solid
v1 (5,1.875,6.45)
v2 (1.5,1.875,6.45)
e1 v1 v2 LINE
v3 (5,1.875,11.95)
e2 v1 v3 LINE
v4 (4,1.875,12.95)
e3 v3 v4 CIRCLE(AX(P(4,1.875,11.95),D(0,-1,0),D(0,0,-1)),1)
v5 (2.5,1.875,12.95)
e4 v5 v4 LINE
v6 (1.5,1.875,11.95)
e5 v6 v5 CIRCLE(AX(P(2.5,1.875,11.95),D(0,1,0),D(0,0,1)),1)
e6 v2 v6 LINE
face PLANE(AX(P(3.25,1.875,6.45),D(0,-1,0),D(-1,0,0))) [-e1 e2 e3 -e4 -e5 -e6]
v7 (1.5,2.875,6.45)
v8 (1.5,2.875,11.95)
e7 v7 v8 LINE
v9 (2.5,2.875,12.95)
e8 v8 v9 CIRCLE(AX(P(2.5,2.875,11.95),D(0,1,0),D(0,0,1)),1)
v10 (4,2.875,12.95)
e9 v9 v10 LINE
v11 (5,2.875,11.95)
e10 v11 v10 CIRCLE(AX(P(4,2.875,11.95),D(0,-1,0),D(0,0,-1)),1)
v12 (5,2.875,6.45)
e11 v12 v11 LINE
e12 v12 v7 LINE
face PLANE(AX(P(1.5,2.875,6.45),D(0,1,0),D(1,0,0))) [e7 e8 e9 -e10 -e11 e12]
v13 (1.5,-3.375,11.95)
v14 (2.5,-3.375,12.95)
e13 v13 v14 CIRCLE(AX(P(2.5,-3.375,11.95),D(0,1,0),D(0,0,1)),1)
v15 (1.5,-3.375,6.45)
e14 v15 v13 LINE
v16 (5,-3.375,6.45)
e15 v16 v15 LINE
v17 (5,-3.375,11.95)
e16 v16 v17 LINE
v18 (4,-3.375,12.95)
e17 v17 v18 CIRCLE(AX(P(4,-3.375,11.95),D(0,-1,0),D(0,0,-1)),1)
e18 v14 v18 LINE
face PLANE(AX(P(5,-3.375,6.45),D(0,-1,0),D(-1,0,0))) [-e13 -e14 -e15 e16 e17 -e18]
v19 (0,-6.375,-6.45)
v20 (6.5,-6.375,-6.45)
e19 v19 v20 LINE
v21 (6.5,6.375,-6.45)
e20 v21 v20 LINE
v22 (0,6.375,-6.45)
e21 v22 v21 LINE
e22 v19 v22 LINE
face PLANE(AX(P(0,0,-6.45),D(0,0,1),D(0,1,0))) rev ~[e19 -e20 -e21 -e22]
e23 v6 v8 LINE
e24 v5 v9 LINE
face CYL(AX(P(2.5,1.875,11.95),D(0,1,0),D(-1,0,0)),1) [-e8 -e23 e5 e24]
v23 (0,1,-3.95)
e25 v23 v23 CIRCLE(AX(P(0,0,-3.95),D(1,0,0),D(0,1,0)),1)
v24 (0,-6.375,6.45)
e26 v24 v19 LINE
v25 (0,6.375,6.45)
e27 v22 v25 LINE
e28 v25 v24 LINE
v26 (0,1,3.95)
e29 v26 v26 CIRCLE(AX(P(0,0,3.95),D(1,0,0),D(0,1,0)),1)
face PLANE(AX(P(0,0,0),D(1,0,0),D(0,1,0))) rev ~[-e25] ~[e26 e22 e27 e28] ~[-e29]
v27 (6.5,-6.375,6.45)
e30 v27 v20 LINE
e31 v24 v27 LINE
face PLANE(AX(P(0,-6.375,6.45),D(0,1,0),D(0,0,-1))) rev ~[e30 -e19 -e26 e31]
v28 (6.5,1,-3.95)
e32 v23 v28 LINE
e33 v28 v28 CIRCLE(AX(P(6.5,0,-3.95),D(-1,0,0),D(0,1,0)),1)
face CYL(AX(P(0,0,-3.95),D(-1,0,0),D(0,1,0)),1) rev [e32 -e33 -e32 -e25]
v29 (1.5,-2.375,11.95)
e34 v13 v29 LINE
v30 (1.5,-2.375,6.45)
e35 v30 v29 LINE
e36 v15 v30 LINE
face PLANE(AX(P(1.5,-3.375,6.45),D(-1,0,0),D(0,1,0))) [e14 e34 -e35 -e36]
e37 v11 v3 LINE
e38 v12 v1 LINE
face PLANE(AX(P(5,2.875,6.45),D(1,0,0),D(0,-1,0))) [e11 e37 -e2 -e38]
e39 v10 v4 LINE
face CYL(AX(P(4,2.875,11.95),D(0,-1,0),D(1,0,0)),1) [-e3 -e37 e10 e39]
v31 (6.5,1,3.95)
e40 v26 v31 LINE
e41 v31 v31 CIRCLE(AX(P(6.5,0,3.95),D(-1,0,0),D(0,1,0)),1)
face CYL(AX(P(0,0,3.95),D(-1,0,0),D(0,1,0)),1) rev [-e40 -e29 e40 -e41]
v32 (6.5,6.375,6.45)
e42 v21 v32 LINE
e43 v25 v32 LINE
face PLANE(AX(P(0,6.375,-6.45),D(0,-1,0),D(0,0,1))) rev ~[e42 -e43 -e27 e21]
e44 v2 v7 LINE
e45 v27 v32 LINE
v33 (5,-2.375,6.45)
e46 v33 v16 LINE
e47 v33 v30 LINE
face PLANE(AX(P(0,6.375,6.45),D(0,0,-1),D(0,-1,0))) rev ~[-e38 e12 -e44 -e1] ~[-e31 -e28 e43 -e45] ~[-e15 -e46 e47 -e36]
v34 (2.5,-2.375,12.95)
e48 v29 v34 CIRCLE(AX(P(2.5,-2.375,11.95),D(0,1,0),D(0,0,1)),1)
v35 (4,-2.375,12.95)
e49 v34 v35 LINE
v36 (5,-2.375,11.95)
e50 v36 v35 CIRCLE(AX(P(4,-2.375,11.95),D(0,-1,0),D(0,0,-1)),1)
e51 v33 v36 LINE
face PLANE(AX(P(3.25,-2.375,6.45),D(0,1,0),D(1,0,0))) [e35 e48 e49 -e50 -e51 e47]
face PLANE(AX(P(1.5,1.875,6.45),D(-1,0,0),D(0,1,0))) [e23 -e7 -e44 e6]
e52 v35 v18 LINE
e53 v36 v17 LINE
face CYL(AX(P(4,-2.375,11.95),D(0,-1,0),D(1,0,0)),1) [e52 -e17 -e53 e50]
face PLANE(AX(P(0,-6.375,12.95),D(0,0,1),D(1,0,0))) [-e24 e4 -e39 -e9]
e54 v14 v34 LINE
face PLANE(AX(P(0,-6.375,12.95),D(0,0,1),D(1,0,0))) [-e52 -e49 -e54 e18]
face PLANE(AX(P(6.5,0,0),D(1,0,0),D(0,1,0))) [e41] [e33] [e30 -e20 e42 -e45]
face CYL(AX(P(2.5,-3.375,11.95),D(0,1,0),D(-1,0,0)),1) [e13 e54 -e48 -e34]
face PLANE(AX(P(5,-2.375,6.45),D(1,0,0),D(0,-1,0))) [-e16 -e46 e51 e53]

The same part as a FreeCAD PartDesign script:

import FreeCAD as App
import Part
import Sketcher

V = App.Vector


def edges_at(feature, points):
    """Names of the edges that pass closest to the given points."""
    edges = feature.Shape.Edges
    near = lambda p: min(range(len(edges)), key=lambda i: edges[i].distToShape(Part.Vertex(*p))[0])
    return sorted({f"Edge{near(p) + 1}" for p in points})


def add_polygon(sketch, points):
    """Adds a closed chain of lines whose ends are joined by coincident constraints."""
    first, n = sketch.GeometryCount, len(points)
    for a, b in zip(points, points[1:] + points[:1]):
        sketch.addGeometry(Part.LineSegment(App.Vector(*a, 0), App.Vector(*b, 0)), False)
    for i in range(n):
        sketch.addConstraint(Sketcher.Constraint("Coincident", first + i, 2, first + (i + 1) % n, 1))

doc = App.newDocument("Part")
body = doc.addObject("PartDesign::Body", "Body")

sketch1 = body.newObject("Sketcher::SketchObject", "Sketch")
sketch1.AttachmentSupport = (doc.getObject("YZ_Plane"), [""])
sketch1.MapMode = "FlatFace"
add_polygon(sketch1, [(6.4, -6.5), (6.4, 6.5), (-6.4, 6.5), (-6.4, -6.5)])
sketch1.addGeometry(Part.Circle(V(0, -4, 0), V(0, 0, 1), 1), False)
sketch1.addGeometry(Part.Circle(V(0, 4, 0), V(0, 0, 1), 1), False)
sketch1.addConstraint(Sketcher.Constraint("Vertical", 0))
sketch1.addConstraint(Sketcher.Constraint("Horizontal", 1))
sketch1.addConstraint(Sketcher.Constraint("Vertical", 2))
sketch1.addConstraint(Sketcher.Constraint("Horizontal", 3))
sketch1.addConstraint(Sketcher.Constraint("Equal", 4, 5))
sketch1.addConstraint(Sketcher.Constraint("Symmetric", 4, 3, 5, 3, -1, 1))
sketch1.addConstraint(Sketcher.Constraint("Symmetric", 0, 2, 2, 2, -1, 1))
sketch1.addConstraint(Sketcher.Constraint("PointOnObject", 4, 3, -2))
sketch1.addConstraint(Sketcher.Constraint("Diameter", 4, 2.0))
sketch1.addConstraint(Sketcher.Constraint("DistanceY", 0, 1, 0, 2, 12.9))
sketch1.addConstraint(Sketcher.Constraint("DistanceX", 1, 2, 1, 1, 12.75))
sketch1.addConstraint(Sketcher.Constraint("DistanceY", 5, 3, 0, 2, 2.5))
pad1 = body.newObject("PartDesign::Pad", "Pad")
pad1.Profile = sketch1
pad1.Length = 6.5

sketch2 = body.newObject("Sketcher::SketchObject", "Sketch001")
sketch2.AttachmentSupport = (doc.getObject("XY_Plane"), [""])
sketch2.MapMode = "FlatFace"
sketch2.AttachmentOffset = App.Placement(V(0, 0, 6.45), App.Rotation())
add_polygon(sketch2, [(5, -2.4), (1.5, -2.4), (1.5, -3.4), (5, -3.4)])
add_polygon(sketch2, [(1.5, 2.9), (1.5, 1.9), (5, 1.9), (5, 2.9)])
sketch2.addConstraint(Sketcher.Constraint("Horizontal", 0))
sketch2.addConstraint(Sketcher.Constraint("Vertical", 1))
sketch2.addConstraint(Sketcher.Constraint("Horizontal", 2))
sketch2.addConstraint(Sketcher.Constraint("Vertical", 3))
sketch2.addConstraint(Sketcher.Constraint("Vertical", 4))
sketch2.addConstraint(Sketcher.Constraint("Horizontal", 5))
sketch2.addConstraint(Sketcher.Constraint("Vertical", 6))
sketch2.addConstraint(Sketcher.Constraint("Horizontal", 7))
sketch2.addConstraint(Sketcher.Constraint("Vertical", 1, 2, 4, 2))
sketch2.addConstraint(Sketcher.Constraint("Vertical", 3, 2, 5, 2))
sketch2.addConstraint(Sketcher.Constraint("Equal", 3, 4))
sketch2.addConstraint(Sketcher.Constraint("DistanceY", 1, 2, 1, 1, 1.0))
sketch2.addConstraint(Sketcher.Constraint("DistanceX", 0, 2, 0, 1, 3.5))
sketch2.addConstraint(Sketcher.Constraint("DistanceX", -1, 1, 2, 2, 5.0))
sketch2.addConstraint(Sketcher.Constraint("DistanceY", 0, 2, 4, 2, 4.25))
sketch2.addConstraint(Sketcher.Constraint("DistanceY", 0, 2, -1, 1, 2.375))
pad2 = body.newObject("PartDesign::Pad", "Pad001")
pad2.Profile = sketch2
pad2.Length = 6.5
doc.recompute()

fillet = body.newObject("PartDesign::Fillet", "Fillet")
fillet.Base = (pad2, edges_at(pad2, [
    (5, 2.375, 12.95),
    (1.5, 2.375, 12.95),
    (1.5, -2.875, 12.95),
    (5, -2.875, 12.95),
]))
fillet.Radius = 1

doc.recompute()
